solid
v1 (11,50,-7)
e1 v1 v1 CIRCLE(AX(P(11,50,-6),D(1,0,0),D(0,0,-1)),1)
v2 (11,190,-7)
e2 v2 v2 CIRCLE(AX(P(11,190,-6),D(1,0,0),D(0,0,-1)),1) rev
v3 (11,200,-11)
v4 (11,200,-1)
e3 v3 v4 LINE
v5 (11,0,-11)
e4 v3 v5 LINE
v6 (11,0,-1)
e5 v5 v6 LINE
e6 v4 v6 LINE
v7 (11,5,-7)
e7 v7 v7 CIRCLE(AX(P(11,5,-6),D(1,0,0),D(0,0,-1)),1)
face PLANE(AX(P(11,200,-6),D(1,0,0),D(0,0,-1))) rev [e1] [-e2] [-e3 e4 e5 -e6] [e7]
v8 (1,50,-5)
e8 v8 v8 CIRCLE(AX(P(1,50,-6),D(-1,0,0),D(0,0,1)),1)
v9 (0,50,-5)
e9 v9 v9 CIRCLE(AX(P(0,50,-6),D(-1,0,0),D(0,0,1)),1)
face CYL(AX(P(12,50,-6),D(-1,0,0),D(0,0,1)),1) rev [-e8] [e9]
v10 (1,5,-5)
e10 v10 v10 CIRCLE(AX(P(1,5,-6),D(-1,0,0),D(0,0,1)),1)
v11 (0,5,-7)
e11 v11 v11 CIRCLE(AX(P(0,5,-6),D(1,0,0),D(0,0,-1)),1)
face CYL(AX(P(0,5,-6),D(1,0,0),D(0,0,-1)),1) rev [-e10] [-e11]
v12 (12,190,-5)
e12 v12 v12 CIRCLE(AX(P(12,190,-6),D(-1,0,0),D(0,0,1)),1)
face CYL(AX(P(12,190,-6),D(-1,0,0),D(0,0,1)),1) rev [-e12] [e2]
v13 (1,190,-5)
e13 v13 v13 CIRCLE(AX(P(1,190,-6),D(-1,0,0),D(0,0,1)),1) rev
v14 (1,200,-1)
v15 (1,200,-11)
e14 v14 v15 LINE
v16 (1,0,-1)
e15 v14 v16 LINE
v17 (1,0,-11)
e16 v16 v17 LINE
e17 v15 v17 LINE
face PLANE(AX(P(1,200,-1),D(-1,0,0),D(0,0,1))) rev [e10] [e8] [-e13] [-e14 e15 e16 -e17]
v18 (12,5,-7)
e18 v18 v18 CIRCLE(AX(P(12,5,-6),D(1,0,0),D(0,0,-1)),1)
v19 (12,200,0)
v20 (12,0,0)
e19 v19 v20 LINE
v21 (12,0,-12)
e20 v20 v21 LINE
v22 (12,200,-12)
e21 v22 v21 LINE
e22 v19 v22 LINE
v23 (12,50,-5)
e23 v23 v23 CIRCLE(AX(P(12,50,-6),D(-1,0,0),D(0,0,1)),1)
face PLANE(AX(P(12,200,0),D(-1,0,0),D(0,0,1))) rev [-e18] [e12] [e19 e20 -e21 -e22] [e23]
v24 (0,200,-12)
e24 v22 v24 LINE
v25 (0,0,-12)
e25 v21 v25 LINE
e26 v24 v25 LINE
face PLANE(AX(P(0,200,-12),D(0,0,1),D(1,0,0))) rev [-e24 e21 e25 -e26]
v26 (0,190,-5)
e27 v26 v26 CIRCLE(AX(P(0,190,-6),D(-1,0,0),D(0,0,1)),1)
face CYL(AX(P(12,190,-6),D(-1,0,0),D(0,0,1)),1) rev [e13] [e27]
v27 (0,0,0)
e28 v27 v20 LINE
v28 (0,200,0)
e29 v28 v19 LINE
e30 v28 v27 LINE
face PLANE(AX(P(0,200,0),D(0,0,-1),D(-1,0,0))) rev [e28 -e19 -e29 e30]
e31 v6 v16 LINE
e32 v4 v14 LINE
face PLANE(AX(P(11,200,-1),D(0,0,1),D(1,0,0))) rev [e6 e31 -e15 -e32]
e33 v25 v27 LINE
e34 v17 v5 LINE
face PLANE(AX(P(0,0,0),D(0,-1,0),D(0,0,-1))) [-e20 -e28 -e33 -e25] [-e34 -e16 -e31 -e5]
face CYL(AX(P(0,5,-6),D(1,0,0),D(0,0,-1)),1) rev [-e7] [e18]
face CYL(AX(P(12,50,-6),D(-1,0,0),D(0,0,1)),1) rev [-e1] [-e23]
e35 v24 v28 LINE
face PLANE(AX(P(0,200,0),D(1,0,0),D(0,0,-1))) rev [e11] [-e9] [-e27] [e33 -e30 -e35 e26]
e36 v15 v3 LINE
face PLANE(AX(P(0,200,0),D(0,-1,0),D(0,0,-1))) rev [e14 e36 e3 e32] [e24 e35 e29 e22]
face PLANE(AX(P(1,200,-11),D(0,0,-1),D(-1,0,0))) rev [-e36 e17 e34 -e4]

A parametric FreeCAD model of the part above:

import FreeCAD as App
import Part
import Sketcher
from FreeCAD import Vector
Q = App.Units.Quantity

doc = App.newDocument("Part")
body = doc.addObject("PartDesign::Body", "Body")

sketch1 = doc.addObject("Sketcher::SketchObject", "Sketch")
body.addObject(sketch1)
sketch1.AttachmentSupport = (doc.XZ_Plane, [""])
sketch1.MapMode = "FlatFace"
sketch1.addGeometry(Part.LineSegment(Vector(0, -12, 0), Vector(0, 0, 0)), False)
sketch1.addGeometry(Part.LineSegment(Vector(0, 0, 0), Vector(12, 0, 0)), False)
sketch1.addGeometry(Part.LineSegment(Vector(12, 0, 0), Vector(12, -12, 0)), False)
sketch1.addGeometry(Part.LineSegment(Vector(12, -12, 0), Vector(0, -12, 0)), False)
sketch1.addGeometry(Part.LineSegment(Vector(10, -2, 0), Vector(2, -2, 0)), False)
sketch1.addGeometry(Part.LineSegment(Vector(2, -2, 0), Vector(2, -10, 0)), False)
sketch1.addGeometry(Part.LineSegment(Vector(2, -10, 0), Vector(10, -10, 0)), False)
sketch1.addGeometry(Part.LineSegment(Vector(10, -10, 0), Vector(10, -2, 0)), False)
sketch1.addConstraint(Sketcher.Constraint("Coincident", 0, 2, 1, 1))
sketch1.addConstraint(Sketcher.Constraint("Coincident", 1, 2, 2, 1))
sketch1.addConstraint(Sketcher.Constraint("Coincident", 2, 2, 3, 1))
sketch1.addConstraint(Sketcher.Constraint("Coincident", 3, 2, 0, 1))
sketch1.addConstraint(Sketcher.Constraint("Coincident", 4, 2, 5, 1))
sketch1.addConstraint(Sketcher.Constraint("Coincident", 5, 2, 6, 1))
sketch1.addConstraint(Sketcher.Constraint("Coincident", 6, 2, 7, 1))
sketch1.addConstraint(Sketcher.Constraint("Coincident", 7, 2, 4, 1))
sketch1.addConstraint(Sketcher.Constraint("Vertical", 0))
sketch1.addConstraint(Sketcher.Constraint("Horizontal", 1))
sketch1.addConstraint(Sketcher.Constraint("Vertical", 2))
sketch1.addConstraint(Sketcher.Constraint("Horizontal", 3))
sketch1.addConstraint(Sketcher.Constraint("Horizontal", 4))
sketch1.addConstraint(Sketcher.Constraint("Vertical", 5))
sketch1.addConstraint(Sketcher.Constraint("Horizontal", 6))
sketch1.addConstraint(Sketcher.Constraint("Vertical", 7))
sketch1.addConstraint(Sketcher.Constraint("Coincident", 0, 2, -1, 1))
sketch1.addConstraint(Sketcher.Constraint("Equal", 3, 0))
sketch1.addConstraint(Sketcher.Constraint("Equal", 6, 5))
sketch1.addConstraint(Sketcher.Constraint("DistanceX", 1, 1, 1, 2, Q("12 mm")))
sketch1.addConstraint(Sketcher.Constraint("DistanceX", 4, 2, 4, 1, Q("8 mm")))
sketch1.addConstraint(Sketcher.Constraint("DistanceX", -1, 1, 4, 2, Q("2 mm")))
sketch1.addConstraint(Sketcher.Constraint("DistanceY", 4, 2, -1, 1, Q("2 mm")))
pad1 = doc.addObject("PartDesign::Pad", "Pad")
body.addObject(pad1)
pad1.Profile = sketch1
pad1.Length = 200
pad1.Reversed = True

sketch2 = doc.addObject("Sketcher::SketchObject", "Sketch001")
body.addObject(sketch2)
sketch2.AttachmentSupport = (doc.YZ_Plane, [""])
sketch2.MapMode = "FlatFace"
sketch2.addGeometry(Part.Circle(Vector(190, -6, 0), Vector(0, 0, 1), 1), False)
sketch2.addConstraint(Sketcher.Constraint("Diameter", 0, Q("2 mm")))
sketch2.addConstraint(Sketcher.Constraint("DistanceX", -1, 1, 0, 3, Q("190 mm")))
sketch2.addConstraint(Sketcher.Constraint("DistanceY", 0, 3, -1, 1, Q("6 mm")))
pocket1 = doc.addObject("PartDesign::Pocket", "Pocket")
body.addObject(pocket1)
pocket1.Profile = sketch2
pocket1.Length = 12
pocket1.Reversed = True

sketch3 = doc.addObject("Sketcher::SketchObject", "Sketch002")
body.addObject(sketch3)
sketch3.AttachmentSupport = (doc.XZ_Plane, [""])
sketch3.MapMode = "FlatFace"
sketch3.addGeometry(Part.LineSegment(Vector(11, -1, 0), Vector(1, -1, 0)), False)
sketch3.addGeometry(Part.LineSegment(Vector(1, -1, 0), Vector(1, -11, 0)), False)
sketch3.addGeometry(Part.LineSegment(Vector(1, -11, 0), Vector(11, -11, 0)), False)
sketch3.addGeometry(Part.LineSegment(Vector(11, -11, 0), Vector(11, -1, 0)), False)
sketch3.addConstraint(Sketcher.Constraint("Coincident", 0, 2, 1, 1))
sketch3.addConstraint(Sketcher.Constraint("Coincident", 1, 2, 2, 1))
sketch3.addConstraint(Sketcher.Constraint("Coincident", 2, 2, 3, 1))
sketch3.addConstraint(Sketcher.Constraint("Coincident", 3, 2, 0, 1))
sketch3.addConstraint(Sketcher.Constraint("Horizontal", 0))
sketch3.addConstraint(Sketcher.Constraint("Vertical", 1))
sketch3.addConstraint(Sketcher.Constraint("Horizontal", 2))
sketch3.addConstraint(Sketcher.Constraint("Vertical", 3))
sketch3.addConstraint(Sketcher.Constraint("Equal", 2, 1))
sketch3.addConstraint(Sketcher.Constraint("DistanceX", 0, 2, 0, 1, Q("10 mm")))
sketch3.addConstraint(Sketcher.Constraint("DistanceX", -1, 1, 0, 2, Q("1 mm")))
sketch3.addConstraint(Sketcher.Constraint("DistanceY", 0, 2, -1, 1, Q("1 mm")))
pocket2 = doc.addObject("PartDesign::Pocket", "Pocket001")
body.addObject(pocket2)
pocket2.Profile = sketch3
pocket2.Length = 200

sketch4 = doc.addObject("Sketcher::SketchObject", "Sketch003")
body.addObject(sketch4)
sketch4.AttachmentSupport = (doc.YZ_Plane, [""])
sketch4.MapMode = "FlatFace"
sketch4.AttachmentOffset = App.Placement(Vector(0, 0, 12), App.Rotation())
sketch4.addGeometry(Part.Circle(Vector(5, -6, 0), Vector(0, 0, 1), 1), False)
sketch4.addConstraint(Sketcher.Constraint("Diameter", 0, Q("2 mm")))
sketch4.addConstraint(Sketcher.Constraint("DistanceX", -1, 1, 0, 3, Q("5 mm")))
sketch4.addConstraint(Sketcher.Constraint("DistanceY", 0, 3, -1, 1, Q("6 mm")))
pocket3 = doc.addObject("PartDesign::Pocket", "Pocket002")
body.addObject(pocket3)
pocket3.Profile = sketch4
pocket3.Length = 12

sketch5 = doc.addObject("Sketcher::SketchObject", "Sketch004")
body.addObject(sketch5)
sketch5.AttachmentSupport = (doc.YZ_Plane, [""])
sketch5.MapMode = "FlatFace"
sketch5.addGeometry(Part.Circle(Vector(50, -6, 0), Vector(0, 0, 1), 1), False)
sketch5.addConstraint(Sketcher.Constraint("Diameter", 0, Q("2 mm")))
sketch5.addConstraint(Sketcher.Constraint("DistanceX", -1, 1, 0, 3, Q("50 mm")))
sketch5.addConstraint(Sketcher.Constraint("DistanceY", 0, 3, -1, 1, Q("6 mm")))
pocket4 = doc.addObject("PartDesign::Pocket", "Pocket003")
body.addObject(pocket4)
pocket4.Profile = sketch5
pocket4.Length = 12
pocket4.Reversed = True

doc.recompute()
